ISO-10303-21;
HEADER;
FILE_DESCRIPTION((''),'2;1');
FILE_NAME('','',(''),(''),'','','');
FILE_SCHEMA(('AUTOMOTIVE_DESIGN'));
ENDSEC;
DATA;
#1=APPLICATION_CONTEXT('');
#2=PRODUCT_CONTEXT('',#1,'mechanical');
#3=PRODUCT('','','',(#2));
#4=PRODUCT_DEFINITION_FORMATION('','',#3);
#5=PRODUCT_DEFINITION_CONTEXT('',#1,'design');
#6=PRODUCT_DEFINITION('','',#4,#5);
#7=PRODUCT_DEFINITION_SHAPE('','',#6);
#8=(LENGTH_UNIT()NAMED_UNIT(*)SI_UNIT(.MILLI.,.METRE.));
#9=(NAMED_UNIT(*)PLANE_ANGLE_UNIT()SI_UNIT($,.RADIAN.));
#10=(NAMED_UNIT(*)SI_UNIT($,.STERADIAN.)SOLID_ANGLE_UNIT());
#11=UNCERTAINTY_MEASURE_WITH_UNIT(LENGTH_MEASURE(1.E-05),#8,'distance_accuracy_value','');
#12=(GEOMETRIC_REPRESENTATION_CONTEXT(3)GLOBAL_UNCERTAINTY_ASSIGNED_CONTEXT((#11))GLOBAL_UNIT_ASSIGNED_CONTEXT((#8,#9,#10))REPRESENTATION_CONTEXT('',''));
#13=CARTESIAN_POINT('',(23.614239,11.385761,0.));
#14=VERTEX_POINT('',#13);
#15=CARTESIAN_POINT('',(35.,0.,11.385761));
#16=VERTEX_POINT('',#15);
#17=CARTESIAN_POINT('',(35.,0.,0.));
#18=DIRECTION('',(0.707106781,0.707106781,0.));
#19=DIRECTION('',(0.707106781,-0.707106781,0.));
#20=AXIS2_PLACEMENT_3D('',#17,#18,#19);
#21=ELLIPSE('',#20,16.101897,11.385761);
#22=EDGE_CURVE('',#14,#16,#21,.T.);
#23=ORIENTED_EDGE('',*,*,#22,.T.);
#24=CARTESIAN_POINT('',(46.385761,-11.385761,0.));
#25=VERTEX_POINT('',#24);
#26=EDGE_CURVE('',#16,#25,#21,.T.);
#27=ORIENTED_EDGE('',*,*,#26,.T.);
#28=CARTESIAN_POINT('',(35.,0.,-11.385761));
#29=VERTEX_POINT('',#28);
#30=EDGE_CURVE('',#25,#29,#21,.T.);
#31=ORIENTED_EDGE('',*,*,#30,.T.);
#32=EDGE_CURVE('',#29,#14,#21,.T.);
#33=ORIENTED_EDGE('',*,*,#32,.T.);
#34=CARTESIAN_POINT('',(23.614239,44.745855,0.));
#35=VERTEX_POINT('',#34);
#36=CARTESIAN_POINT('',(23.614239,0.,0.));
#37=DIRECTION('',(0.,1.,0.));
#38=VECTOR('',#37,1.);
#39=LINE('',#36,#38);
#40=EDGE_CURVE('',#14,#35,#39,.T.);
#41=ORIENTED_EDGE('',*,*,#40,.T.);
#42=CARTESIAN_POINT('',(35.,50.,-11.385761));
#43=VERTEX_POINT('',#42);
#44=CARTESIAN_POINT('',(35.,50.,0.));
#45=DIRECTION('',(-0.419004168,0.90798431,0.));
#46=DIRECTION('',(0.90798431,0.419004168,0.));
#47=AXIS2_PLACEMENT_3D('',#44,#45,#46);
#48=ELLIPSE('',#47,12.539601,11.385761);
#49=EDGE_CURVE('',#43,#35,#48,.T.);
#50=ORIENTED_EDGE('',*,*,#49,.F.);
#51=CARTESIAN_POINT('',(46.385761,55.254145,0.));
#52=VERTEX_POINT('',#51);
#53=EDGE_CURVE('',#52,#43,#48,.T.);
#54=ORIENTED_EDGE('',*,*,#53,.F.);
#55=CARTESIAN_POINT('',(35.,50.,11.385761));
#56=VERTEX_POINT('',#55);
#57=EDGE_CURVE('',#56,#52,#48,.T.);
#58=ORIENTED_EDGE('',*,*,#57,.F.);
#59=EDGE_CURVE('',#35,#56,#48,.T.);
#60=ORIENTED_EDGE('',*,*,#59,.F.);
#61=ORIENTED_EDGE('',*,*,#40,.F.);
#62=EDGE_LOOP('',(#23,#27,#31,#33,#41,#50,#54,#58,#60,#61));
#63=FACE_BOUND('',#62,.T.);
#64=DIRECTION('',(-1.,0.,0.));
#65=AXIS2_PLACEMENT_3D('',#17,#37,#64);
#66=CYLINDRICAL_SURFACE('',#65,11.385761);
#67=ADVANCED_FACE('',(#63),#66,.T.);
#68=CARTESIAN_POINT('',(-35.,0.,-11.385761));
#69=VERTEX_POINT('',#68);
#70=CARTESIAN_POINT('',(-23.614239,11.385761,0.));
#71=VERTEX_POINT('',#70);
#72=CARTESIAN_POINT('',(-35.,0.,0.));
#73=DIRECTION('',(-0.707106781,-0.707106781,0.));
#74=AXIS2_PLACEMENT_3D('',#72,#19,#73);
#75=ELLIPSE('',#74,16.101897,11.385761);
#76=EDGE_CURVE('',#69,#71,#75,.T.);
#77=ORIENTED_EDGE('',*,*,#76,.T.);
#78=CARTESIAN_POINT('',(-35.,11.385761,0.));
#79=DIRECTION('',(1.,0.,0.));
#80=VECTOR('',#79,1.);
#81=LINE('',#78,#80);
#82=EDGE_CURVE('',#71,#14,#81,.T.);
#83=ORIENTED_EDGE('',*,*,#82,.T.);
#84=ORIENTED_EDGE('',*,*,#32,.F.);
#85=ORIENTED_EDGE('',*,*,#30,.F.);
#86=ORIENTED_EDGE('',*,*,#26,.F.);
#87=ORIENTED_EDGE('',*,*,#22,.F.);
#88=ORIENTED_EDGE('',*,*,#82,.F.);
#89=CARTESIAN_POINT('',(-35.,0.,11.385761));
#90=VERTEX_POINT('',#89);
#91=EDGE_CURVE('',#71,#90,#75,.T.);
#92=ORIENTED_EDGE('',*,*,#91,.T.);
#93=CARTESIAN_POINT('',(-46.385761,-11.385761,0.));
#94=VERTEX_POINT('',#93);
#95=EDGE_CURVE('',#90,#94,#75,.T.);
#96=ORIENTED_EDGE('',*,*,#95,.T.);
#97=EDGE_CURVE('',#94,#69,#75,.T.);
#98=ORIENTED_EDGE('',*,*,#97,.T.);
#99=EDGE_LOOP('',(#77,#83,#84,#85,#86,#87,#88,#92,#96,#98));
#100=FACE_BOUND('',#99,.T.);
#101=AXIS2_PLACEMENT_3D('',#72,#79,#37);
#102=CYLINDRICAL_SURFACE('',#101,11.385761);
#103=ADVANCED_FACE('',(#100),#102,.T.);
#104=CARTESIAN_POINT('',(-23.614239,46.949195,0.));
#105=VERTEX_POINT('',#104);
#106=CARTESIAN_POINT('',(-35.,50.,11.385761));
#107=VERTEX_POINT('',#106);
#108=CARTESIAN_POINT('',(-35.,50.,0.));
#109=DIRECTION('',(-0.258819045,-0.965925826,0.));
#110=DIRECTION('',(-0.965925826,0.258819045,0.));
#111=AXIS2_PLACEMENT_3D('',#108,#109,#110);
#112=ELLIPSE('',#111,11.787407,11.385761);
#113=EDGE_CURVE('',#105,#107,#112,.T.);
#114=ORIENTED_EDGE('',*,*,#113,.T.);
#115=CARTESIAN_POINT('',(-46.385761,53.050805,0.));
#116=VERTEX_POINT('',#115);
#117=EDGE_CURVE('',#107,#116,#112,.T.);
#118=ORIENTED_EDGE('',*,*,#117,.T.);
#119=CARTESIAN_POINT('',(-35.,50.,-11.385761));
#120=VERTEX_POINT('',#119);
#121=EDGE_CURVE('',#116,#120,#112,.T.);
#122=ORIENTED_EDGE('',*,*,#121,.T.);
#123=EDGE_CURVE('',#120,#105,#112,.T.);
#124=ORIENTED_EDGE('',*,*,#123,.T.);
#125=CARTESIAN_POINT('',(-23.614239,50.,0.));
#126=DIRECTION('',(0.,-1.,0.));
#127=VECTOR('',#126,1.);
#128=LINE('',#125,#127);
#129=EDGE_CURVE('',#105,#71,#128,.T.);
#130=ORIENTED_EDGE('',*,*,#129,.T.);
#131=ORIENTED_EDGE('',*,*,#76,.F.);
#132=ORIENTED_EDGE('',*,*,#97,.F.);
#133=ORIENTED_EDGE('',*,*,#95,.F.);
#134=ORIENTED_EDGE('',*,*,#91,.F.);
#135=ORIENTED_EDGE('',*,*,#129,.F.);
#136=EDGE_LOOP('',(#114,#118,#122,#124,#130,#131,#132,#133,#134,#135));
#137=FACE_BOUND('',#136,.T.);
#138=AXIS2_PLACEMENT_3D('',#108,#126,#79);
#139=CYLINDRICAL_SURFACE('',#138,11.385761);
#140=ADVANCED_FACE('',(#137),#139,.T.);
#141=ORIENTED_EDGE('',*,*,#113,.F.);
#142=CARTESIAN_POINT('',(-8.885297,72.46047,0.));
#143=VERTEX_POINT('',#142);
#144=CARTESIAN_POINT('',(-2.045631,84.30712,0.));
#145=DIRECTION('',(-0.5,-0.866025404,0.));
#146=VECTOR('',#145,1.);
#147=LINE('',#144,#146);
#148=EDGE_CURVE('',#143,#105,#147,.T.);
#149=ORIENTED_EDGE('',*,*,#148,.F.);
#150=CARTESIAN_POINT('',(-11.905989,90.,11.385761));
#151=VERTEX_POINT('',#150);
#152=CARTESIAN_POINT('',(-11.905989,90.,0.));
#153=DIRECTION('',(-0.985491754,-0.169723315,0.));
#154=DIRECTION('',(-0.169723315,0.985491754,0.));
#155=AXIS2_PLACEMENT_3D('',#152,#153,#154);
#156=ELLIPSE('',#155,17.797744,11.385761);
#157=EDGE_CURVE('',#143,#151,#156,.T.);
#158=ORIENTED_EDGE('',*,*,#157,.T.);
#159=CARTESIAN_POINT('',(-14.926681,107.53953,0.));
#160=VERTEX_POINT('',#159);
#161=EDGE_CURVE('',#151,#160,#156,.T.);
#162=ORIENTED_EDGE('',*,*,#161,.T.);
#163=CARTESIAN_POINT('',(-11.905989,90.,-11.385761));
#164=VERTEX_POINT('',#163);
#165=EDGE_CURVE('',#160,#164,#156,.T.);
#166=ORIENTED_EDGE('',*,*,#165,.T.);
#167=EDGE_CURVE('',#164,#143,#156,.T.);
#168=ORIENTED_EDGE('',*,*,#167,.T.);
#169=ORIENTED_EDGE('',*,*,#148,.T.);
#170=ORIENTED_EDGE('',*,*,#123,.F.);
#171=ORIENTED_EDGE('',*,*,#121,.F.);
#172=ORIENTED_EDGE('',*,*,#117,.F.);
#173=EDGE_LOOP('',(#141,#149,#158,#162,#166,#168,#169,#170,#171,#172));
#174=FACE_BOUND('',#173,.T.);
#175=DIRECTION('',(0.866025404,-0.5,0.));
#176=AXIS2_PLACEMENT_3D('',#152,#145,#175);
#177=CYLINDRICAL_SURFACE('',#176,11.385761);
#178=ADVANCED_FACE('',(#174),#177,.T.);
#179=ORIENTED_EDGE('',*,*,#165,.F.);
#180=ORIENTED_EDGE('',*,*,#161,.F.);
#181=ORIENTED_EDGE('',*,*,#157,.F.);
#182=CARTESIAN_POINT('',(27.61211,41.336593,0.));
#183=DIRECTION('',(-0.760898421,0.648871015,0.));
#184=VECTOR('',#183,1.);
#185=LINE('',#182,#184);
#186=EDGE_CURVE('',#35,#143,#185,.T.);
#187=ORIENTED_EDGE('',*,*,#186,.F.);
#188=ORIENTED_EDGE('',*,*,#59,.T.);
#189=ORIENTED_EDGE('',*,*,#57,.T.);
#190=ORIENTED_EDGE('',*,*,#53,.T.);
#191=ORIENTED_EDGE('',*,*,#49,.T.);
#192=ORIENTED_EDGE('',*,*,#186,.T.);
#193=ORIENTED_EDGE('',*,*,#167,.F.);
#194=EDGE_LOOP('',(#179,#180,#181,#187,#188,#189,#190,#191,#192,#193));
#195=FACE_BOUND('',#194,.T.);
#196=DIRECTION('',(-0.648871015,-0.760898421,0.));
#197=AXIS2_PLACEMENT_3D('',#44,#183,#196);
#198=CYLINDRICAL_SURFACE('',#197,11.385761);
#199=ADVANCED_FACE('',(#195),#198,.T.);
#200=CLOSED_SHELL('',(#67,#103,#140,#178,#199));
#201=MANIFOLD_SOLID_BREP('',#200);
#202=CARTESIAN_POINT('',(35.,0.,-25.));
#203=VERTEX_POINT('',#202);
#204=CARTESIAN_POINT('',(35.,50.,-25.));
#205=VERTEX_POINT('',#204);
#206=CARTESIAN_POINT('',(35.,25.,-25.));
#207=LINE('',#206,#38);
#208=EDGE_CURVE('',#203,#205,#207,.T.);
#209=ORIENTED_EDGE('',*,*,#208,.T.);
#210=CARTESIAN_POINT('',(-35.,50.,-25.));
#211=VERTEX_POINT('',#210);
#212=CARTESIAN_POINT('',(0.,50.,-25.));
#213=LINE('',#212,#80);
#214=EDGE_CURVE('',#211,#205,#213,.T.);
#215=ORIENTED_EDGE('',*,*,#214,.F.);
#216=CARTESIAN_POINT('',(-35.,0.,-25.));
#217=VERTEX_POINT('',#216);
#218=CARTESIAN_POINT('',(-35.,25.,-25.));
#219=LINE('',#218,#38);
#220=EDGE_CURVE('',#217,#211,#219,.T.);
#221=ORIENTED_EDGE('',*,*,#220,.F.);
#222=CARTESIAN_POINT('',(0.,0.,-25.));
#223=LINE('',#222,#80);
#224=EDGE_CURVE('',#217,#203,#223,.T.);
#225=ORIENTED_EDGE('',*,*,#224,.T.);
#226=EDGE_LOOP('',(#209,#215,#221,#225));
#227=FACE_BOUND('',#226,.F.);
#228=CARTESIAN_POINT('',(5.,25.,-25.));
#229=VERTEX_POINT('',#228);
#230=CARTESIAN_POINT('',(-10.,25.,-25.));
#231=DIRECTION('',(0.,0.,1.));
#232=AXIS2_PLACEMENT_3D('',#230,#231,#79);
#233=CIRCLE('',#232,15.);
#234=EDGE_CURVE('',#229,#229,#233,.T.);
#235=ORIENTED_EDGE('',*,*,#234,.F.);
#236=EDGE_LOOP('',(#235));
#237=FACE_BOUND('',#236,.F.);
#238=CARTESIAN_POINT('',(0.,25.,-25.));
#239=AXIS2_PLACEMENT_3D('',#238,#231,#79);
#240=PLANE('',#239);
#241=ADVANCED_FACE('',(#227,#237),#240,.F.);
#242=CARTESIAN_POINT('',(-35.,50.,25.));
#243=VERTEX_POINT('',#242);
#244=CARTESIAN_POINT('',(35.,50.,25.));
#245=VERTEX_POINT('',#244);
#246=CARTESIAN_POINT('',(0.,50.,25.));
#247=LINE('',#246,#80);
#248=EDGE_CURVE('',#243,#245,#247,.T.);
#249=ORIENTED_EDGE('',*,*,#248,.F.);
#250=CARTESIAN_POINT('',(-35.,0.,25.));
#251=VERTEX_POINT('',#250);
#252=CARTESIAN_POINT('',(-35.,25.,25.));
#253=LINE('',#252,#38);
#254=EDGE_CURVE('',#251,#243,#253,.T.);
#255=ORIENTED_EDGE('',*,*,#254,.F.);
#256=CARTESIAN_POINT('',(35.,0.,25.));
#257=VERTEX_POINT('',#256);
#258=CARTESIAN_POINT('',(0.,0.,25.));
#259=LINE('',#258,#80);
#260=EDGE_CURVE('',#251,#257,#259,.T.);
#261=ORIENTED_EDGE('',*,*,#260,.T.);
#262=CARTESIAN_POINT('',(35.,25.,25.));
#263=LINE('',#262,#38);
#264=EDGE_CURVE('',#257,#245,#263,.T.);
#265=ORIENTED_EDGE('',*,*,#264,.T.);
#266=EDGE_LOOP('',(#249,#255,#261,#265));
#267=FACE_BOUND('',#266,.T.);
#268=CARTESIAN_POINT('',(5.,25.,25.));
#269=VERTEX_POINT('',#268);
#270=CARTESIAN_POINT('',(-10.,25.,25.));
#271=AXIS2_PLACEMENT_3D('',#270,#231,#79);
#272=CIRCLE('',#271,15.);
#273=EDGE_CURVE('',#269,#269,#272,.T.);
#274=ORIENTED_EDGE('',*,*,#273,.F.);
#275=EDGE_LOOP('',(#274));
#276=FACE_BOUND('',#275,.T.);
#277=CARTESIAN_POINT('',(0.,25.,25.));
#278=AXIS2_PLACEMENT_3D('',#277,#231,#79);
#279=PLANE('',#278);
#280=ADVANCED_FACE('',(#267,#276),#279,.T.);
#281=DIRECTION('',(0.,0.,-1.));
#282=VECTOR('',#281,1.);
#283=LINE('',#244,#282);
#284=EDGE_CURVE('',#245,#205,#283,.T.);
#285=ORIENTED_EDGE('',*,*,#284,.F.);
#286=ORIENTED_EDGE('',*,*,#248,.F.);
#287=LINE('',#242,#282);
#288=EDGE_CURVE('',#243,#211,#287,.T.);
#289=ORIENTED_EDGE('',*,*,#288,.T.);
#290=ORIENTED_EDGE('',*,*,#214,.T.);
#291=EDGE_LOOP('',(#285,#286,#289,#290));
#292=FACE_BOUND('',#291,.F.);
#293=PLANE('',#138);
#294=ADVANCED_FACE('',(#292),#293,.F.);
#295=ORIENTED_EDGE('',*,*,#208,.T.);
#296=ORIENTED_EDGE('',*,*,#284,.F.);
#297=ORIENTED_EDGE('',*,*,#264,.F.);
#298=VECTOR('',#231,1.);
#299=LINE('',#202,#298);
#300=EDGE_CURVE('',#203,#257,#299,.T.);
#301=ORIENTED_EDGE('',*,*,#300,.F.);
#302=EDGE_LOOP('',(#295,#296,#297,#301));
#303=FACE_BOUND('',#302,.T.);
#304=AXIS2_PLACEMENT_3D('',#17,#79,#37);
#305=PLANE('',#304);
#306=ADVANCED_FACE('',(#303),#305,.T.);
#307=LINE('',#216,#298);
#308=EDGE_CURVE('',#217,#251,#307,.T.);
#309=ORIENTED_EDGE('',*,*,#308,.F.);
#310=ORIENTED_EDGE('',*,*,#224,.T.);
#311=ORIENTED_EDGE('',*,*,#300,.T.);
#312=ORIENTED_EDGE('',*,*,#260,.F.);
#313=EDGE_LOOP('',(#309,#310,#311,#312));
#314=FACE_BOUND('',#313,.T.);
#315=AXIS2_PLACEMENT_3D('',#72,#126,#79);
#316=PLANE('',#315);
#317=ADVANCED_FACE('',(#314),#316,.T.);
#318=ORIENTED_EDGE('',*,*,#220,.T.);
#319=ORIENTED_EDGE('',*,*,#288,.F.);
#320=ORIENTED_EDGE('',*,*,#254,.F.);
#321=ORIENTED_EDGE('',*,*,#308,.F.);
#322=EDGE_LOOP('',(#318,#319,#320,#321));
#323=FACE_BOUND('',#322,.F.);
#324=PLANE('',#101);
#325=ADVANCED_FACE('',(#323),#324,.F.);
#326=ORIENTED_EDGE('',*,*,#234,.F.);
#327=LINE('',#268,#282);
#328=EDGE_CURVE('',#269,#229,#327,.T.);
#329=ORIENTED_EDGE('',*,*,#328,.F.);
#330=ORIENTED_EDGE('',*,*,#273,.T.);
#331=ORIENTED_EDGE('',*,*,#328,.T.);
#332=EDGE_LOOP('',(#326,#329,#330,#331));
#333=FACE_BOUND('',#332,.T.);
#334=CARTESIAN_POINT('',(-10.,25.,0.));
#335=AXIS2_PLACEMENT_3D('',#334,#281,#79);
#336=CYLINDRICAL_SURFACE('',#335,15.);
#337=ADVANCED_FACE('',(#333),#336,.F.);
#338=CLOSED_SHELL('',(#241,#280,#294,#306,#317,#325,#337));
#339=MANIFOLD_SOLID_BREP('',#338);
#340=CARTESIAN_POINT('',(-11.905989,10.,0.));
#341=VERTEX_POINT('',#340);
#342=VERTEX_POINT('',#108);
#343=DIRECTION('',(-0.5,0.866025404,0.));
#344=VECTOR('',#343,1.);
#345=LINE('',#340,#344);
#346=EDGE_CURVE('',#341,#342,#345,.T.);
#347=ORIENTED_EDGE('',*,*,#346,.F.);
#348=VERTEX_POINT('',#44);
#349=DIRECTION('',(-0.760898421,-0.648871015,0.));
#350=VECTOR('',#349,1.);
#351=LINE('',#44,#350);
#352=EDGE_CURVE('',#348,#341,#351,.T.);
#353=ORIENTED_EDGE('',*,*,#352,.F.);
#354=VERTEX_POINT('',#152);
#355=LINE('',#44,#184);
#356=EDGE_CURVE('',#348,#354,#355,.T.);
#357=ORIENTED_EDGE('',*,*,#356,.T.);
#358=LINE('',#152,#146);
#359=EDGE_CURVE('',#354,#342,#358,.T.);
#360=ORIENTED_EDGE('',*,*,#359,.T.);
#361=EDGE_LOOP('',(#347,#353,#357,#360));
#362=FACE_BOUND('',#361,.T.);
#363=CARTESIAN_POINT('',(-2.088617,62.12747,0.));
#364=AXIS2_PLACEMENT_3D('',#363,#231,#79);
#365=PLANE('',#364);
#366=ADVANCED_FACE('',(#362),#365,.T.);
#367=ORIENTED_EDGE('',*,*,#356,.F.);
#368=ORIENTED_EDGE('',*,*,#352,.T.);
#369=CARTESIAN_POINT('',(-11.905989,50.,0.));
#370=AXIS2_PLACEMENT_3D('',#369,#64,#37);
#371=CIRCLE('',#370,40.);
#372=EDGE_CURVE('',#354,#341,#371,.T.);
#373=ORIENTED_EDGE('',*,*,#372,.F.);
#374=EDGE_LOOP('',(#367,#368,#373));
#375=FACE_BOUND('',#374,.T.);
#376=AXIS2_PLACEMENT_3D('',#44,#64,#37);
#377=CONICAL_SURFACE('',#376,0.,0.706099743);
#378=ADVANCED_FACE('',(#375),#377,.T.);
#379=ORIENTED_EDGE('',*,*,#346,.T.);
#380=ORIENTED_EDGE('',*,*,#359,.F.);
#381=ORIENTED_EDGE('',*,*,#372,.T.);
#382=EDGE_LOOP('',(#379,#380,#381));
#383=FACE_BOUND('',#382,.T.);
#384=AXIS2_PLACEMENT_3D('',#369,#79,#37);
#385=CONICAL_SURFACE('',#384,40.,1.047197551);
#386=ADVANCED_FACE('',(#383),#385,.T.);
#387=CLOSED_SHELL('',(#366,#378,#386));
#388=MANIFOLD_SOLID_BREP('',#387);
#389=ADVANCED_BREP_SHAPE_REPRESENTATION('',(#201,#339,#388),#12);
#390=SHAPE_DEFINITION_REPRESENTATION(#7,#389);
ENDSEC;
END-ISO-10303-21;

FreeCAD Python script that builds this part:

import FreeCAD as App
import Part
import Sketcher
Q = App.Units.Quantity


def add_polygon(sketch, points):
    """Adds a closed chain of lines whose ends are joined by coincident constraints."""
    first, n = sketch.GeometryCount, len(points)
    for a, b in zip(points, points[1:] + points[:1]):
        sketch.addGeometry(Part.LineSegment(App.Vector(*a, 0), App.Vector(*b, 0)), False)
    for i in range(n):
        sketch.addConstraint(Sketcher.Constraint("Coincident", first + i, 2, first + (i + 1) % n, 1))

doc = App.newDocument("Part")
params = doc.addObject("Spreadsheet::Sheet", "Params")
for row, (alias, value) in enumerate([
    ("sketch1_diameter", "30 mm"),
    ("sketch1_width", "70 mm"),
    ("sketch1_height", "50 mm"),
    ("pad1_length", "50 mm"),
    ("sketch2_width", "70 mm"),
    ("revolution_angle", "180 deg"),
    ("sketch4_width", "70 mm"),
    ("sketch4_height", "50 mm"),
], start=1):
    params.set(f"A{row}", alias)
    params.set(f"B{row}", "=" + value)
    params.setAlias(f"B{row}", alias)

body = doc.addObject("PartDesign::Body", "Body")

sketch1 = body.newObject("Sketcher::SketchObject", "Sketch")
sketch1.AttachmentSupport = (doc.getObject("XY_Plane"), [""])
sketch1.MapMode = "FlatFace"
add_polygon(sketch1, [(-35, 50), (-35, 0), (35, 0), (35, 50)])
sketch1.addGeometry(Part.Circle(App.Vector(-10, 25, 0), App.Vector(0, 0, 1), 15), False)
sketch1.addConstraint([
    Sketcher.Constraint("Vertical", 0),
    Sketcher.Constraint("Horizontal", 1),
    Sketcher.Constraint("Vertical", 2),
    Sketcher.Constraint("Horizontal", 3),
    Sketcher.Constraint("Symmetric", 0, 2, 1, 2, -1, 1),
    Sketcher.Constraint("Diameter", 4, 30.0),
    Sketcher.Constraint("DistanceX", 1, 1, 1, 2, 70.0),
    Sketcher.Constraint("DistanceY", 0, 2, 0, 1, 50.0),
    Sketcher.Constraint("DistanceX", 4, 3, -1, 1, 10.0),
    Sketcher.Constraint("DistanceY", -1, 1, 4, 3, 25.0),
])
sketch1.setExpression("Constraints[9]", "Params.sketch1_diameter")
sketch1.setExpression("Constraints[10]", "Params.sketch1_width")
sketch1.setExpression("Constraints[11]", "Params.sketch1_height")
pad1 = body.newObject("PartDesign::Pad", "Pad")
pad1.Profile = sketch1
pad1.setExpression("Length", "Params.pad1_length")
pad1.Midplane = True
body2 = doc.addObject("PartDesign::Body", "Body001")

sketch2 = body2.newObject("Sketcher::SketchObject", "Sketch001")
sketch2.AttachmentSupport = (doc.getObject("XY_Plane001"), [""])
sketch2.MapMode = "FlatFace"
add_polygon(sketch2, [(-12, 90), (-35, 50), (35, 50)])
sketch2.addGeometry(Part.LineSegment(App.Vector(35, 50, 0), App.Vector(-35, 50, 0)), True)
sketch2.addConstraint([
    Sketcher.Constraint("Horizontal", 1),
    Sketcher.Constraint("Horizontal", 3),
    Sketcher.Constraint("Coincident", 3, 1, 1, 2),
    Sketcher.Constraint("Equal", 1, 3),
    Sketcher.Constraint("DistanceX", 1, 1, 1, 2, 70.0),
    Sketcher.Constraint("Angle", 0, Q("-120 deg")),
    Sketcher.Constraint("DistanceX", 0, 2, -1, 1, 35.0),
    Sketcher.Constraint("DistanceY", -1, 1, 0, 2, 50.0),
    Sketcher.Constraint("DistanceY", -1, 1, 2, 2, 90.0),
])
sketch2.setExpression("Constraints[7]", "Params.sketch2_width")
revolution = body2.newObject("PartDesign::Revolution", "Revolution")
revolution.Profile = sketch2
revolution.ReferenceAxis = (sketch2, ["Axis0"])
revolution.setExpression("Angle", "Params.revolution_angle")
body3 = doc.addObject("PartDesign::Body", "Body002")

sketch3 = body3.newObject("Sketcher::SketchObject", "Sketch002")
sketch3.AttachmentSupport = (doc.getObject("YZ_Plane002"), [""])
sketch3.MapMode = "FlatFace"
sketch3.AttachmentOffset = App.Placement(App.Vector(0, 0, -35), App.Rotation())
sketch3.addGeometry(Part.Circle(App.Vector(0, 0, 0), App.Vector(0, 0, 1), 11), False)
sketch3.addConstraint([
    Sketcher.Constraint("Coincident", 0, 3, -1, 1),
    Sketcher.Constraint("Diameter", 0, 22.771522),
])

sketch4 = body3.newObject("Sketcher::SketchObject", "Sketch003")
sketch4.AttachmentSupport = (doc.getObject("XY_Plane002"), [""])
sketch4.MapMode = "FlatFace"
add_polygon(sketch4, [(-35, 0), (35, 0), (35, 50), (-12, 90), (-35, 50)])
sketch4.addConstraint([
    Sketcher.Constraint("Horizontal", 0),
    Sketcher.Constraint("Vertical", 1),
    Sketcher.Constraint("Vertical", 4),
    Sketcher.Constraint("Symmetric", 0, 2, 4, 2, -1, 1),
    Sketcher.Constraint("Horizontal", 1, 2, 3, 2),
    Sketcher.Constraint("DistanceX", 0, 1, 0, 2, 70.0),
    Sketcher.Constraint("DistanceY", 1, 1, 1, 2, 50.0),
    Sketcher.Constraint("Angle", 3, Q("-120 deg")),
    Sketcher.Constraint("DistanceY", -1, 1, 2, 2, 90.0),
])
sketch4.setExpression("Constraints[10]", "Params.sketch4_width")
sketch4.setExpression("Constraints[11]", "Params.sketch4_height")
doc.recompute()

additivepipe = body3.newObject("PartDesign::AdditivePipe", "AdditivePipe")
additivepipe.Profile = sketch3
additivepipe.Spine = (sketch4, ["Edge1", "Edge2", "Edge3", "Edge4", "Edge5"])
additivepipe.Transition = "Right corner"

doc.recompute()
